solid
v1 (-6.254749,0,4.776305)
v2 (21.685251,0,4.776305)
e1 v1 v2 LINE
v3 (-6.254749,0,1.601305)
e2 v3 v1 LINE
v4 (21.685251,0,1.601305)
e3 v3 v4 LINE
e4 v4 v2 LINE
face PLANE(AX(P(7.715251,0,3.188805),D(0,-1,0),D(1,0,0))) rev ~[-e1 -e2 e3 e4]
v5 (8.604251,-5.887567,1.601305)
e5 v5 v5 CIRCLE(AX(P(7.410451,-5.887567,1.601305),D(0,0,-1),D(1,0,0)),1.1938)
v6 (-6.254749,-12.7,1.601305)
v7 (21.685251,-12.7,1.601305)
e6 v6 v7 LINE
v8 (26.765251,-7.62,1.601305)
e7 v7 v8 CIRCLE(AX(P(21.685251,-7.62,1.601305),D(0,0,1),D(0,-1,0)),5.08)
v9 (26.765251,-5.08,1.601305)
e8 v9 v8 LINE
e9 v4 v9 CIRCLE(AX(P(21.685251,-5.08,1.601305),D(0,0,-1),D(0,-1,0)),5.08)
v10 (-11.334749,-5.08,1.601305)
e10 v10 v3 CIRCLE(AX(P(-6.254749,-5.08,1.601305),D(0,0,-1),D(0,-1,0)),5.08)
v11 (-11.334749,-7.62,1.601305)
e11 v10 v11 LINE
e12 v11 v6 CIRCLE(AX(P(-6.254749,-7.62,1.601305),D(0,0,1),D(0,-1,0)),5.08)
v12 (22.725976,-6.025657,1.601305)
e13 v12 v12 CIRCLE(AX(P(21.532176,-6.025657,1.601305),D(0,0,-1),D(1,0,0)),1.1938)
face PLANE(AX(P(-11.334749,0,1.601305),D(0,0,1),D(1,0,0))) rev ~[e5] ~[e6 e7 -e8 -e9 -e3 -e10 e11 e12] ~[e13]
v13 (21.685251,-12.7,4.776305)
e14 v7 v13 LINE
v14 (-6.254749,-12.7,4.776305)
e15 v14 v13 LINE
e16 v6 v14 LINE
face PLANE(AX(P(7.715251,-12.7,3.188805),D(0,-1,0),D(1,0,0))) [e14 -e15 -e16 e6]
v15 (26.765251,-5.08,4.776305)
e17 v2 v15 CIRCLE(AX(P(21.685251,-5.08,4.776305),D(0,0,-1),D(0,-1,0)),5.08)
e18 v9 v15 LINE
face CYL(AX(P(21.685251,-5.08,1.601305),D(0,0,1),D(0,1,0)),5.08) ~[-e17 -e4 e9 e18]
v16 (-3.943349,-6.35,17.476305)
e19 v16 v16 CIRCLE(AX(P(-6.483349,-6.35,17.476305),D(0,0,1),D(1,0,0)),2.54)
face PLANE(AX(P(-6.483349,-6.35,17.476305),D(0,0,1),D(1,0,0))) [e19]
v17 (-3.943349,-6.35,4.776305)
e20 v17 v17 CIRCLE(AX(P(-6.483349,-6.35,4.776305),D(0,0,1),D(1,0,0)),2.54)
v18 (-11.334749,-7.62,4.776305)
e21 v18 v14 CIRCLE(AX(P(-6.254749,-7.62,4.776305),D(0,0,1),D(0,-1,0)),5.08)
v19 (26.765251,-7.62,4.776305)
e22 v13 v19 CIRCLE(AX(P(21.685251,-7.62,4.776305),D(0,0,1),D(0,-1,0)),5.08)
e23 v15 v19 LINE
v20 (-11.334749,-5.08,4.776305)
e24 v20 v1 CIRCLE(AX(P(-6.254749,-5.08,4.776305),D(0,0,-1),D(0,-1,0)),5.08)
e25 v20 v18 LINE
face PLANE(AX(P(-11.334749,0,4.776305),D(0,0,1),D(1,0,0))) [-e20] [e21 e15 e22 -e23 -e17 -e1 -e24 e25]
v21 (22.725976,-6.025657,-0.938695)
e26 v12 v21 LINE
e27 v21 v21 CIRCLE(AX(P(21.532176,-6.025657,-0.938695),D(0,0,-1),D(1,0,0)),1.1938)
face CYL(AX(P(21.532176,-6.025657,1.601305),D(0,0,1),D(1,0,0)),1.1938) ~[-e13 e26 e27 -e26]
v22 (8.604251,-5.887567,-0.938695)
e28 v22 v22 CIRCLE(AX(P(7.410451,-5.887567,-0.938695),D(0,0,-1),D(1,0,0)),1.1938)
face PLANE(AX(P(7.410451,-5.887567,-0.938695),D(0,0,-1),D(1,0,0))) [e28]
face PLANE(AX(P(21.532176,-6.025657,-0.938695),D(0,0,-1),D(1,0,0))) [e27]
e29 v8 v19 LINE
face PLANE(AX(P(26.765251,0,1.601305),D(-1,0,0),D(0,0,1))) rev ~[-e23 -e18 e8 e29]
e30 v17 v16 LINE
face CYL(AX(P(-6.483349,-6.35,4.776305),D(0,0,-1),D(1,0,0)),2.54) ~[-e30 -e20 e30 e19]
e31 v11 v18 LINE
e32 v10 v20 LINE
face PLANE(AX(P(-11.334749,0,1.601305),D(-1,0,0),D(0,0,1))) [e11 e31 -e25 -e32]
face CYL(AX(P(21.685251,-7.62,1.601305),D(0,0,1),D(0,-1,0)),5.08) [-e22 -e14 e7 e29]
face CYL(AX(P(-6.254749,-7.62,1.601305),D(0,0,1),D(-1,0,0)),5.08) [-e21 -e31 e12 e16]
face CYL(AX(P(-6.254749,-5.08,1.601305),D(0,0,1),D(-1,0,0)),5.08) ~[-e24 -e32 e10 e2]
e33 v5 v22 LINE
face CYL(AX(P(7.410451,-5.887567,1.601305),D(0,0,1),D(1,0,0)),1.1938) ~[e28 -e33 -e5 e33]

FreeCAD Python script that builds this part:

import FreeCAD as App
import Part
import Sketcher
Q = App.Units.Quantity


def edges_at(feature, points):
    """Names of the edges that pass closest to the given points."""
    edges = feature.Shape.Edges
    near = lambda p: min(range(len(edges)), key=lambda i: edges[i].distToShape(Part.Vertex(*p))[0])
    return sorted({f"Edge{near(p) + 1}" for p in points})


def add_polygon(sketch, points):
    """Adds a closed chain of lines whose ends are joined by coincident constraints."""
    first, n = sketch.GeometryCount, len(points)
    for a, b in zip(points, points[1:] + points[:1]):
        sketch.addGeometry(Part.LineSegment(App.Vector(*a, 0), App.Vector(*b, 0)), False)
    for i in range(n):
        sketch.addConstraint(Sketcher.Constraint("Coincident", first + i, 2, first + (i + 1) % n, 1))

doc = App.newDocument("Part")
body = doc.addObject("PartDesign::Body", "Body")

# Sketch on XZ plane
sketch1 = body.newObject("Sketcher::SketchObject", "Sketch")
sketch1.AttachmentSupport = (doc.getObject("XZ_Plane"), [""])
sketch1.MapMode = "FlatFace"
add_polygon(sketch1, [(-11.3, 4.8), (-11.3, 1.6), (26.8, 1.6), (26.8, 4.8)])  # lines 0-3
sketch1.addConstraint(Sketcher.Constraint("Vertical", 0))
sketch1.addConstraint(Sketcher.Constraint("Horizontal", 1))
sketch1.addConstraint(Sketcher.Constraint("Vertical", 2))
sketch1.addConstraint(Sketcher.Constraint("Horizontal", 3))
sketch1.addConstraint(Sketcher.Constraint("DistanceX", 1, 1, 1, 2, Q("1.5 in")))
sketch1.addConstraint(Sketcher.Constraint("DistanceY", 0, 2, 0, 1, Q("0.125 in")))
sketch1.addConstraint(Sketcher.Constraint("DistanceX", 0, 2, -1, 1, 11.334749))
sketch1.addConstraint(Sketcher.Constraint("DistanceY", -1, 1, 0, 2, 1.601305))
pad1 = body.newObject("PartDesign::Pad", "Pad")
pad1.Profile = sketch1
pad1.Length = Q("0.5 in")

# Sketch on XY plane
sketch2 = body.newObject("Sketcher::SketchObject", "Sketch001")
sketch2.AttachmentSupport = (doc.getObject("XY_Plane"), [""])
sketch2.MapMode = "FlatFace"
sketch2.AttachmentOffset = App.Placement(App.Vector(0, 0, 4.776305), App.Rotation())
sketch2.addGeometry(Part.Circle(App.Vector(-6.5, -6.3, 0), App.Vector(0, 0, 1), 2.5), False)
sketch2.addConstraint(Sketcher.Constraint("Diameter", 0, Q("0.2 in")))
sketch2.addConstraint(Sketcher.Constraint("DistanceY", 0, 3, -1, 1, Q("0.25 in")))
sketch2.addConstraint(Sketcher.Constraint("DistanceX", 0, 3, -1, 1, 6.483349))
pad2 = body.newObject("PartDesign::Pad", "Pad001")
pad2.Profile = sketch2
pad2.Length = Q("0.5 in")

# Sketch on XY plane
sketch3 = body.newObject("Sketcher::SketchObject", "Sketch002")
sketch3.AttachmentSupport = (doc.getObject("XY_Plane"), [""])
sketch3.MapMode = "FlatFace"
sketch3.AttachmentOffset = App.Placement(App.Vector(0, 0, 1.601305), App.Rotation())
sketch3.addGeometry(Part.Circle(App.Vector(7.4, -5.9, 0), App.Vector(0, 0, 1), 1.2), False)
sketch3.addConstraint(Sketcher.Constraint("Diameter", 0, Q("0.094 in")))
sketch3.addConstraint(Sketcher.Constraint("DistanceX", -1, 1, 0, 3, 7.410451))
sketch3.addConstraint(Sketcher.Constraint("DistanceY", 0, 3, -1, 1, 5.887567))
pad3 = body.newObject("PartDesign::Pad", "Pad002")
pad3.Profile = sketch3
pad3.Length = Q("0.1 in")
pad3.Reversed = True

# Sketch on XY plane
sketch4 = body.newObject("Sketcher::SketchObject", "Sketch003")
sketch4.AttachmentSupport = (doc.getObject("XY_Plane"), [""])
sketch4.MapMode = "FlatFace"
sketch4.AttachmentOffset = App.Placement(App.Vector(0, 0, 1.601305), App.Rotation())
sketch4.addGeometry(Part.Circle(App.Vector(21.5, -6, 0), App.Vector(0, 0, 1), 1.2), False)
sketch4.addConstraint(Sketcher.Constraint("Diameter", 0, Q("0.094 in")))
sketch4.addConstraint(Sketcher.Constraint("DistanceX", -1, 1, 0, 3, 21.532176))
sketch4.addConstraint(Sketcher.Constraint("DistanceY", 0, 3, -1, 1, 6.025657))
pad4 = body.newObject("PartDesign::Pad", "Pad003")
pad4.Profile = sketch4
pad4.Length = Q("0.1 in")
pad4.Reversed = True
doc.recompute()

fillet = body.newObject("PartDesign::Fillet", "Fillet")
fillet.Base = (pad4, edges_at(pad4, [
    (-11.335, -12.7, 3.189),
    (-11.335, 0, 3.189),
    (26.765, -12.7, 3.189),
    (26.765, 0, 3.189),
]))
fillet.Radius = Q("0.2 in")

doc.recompute()
